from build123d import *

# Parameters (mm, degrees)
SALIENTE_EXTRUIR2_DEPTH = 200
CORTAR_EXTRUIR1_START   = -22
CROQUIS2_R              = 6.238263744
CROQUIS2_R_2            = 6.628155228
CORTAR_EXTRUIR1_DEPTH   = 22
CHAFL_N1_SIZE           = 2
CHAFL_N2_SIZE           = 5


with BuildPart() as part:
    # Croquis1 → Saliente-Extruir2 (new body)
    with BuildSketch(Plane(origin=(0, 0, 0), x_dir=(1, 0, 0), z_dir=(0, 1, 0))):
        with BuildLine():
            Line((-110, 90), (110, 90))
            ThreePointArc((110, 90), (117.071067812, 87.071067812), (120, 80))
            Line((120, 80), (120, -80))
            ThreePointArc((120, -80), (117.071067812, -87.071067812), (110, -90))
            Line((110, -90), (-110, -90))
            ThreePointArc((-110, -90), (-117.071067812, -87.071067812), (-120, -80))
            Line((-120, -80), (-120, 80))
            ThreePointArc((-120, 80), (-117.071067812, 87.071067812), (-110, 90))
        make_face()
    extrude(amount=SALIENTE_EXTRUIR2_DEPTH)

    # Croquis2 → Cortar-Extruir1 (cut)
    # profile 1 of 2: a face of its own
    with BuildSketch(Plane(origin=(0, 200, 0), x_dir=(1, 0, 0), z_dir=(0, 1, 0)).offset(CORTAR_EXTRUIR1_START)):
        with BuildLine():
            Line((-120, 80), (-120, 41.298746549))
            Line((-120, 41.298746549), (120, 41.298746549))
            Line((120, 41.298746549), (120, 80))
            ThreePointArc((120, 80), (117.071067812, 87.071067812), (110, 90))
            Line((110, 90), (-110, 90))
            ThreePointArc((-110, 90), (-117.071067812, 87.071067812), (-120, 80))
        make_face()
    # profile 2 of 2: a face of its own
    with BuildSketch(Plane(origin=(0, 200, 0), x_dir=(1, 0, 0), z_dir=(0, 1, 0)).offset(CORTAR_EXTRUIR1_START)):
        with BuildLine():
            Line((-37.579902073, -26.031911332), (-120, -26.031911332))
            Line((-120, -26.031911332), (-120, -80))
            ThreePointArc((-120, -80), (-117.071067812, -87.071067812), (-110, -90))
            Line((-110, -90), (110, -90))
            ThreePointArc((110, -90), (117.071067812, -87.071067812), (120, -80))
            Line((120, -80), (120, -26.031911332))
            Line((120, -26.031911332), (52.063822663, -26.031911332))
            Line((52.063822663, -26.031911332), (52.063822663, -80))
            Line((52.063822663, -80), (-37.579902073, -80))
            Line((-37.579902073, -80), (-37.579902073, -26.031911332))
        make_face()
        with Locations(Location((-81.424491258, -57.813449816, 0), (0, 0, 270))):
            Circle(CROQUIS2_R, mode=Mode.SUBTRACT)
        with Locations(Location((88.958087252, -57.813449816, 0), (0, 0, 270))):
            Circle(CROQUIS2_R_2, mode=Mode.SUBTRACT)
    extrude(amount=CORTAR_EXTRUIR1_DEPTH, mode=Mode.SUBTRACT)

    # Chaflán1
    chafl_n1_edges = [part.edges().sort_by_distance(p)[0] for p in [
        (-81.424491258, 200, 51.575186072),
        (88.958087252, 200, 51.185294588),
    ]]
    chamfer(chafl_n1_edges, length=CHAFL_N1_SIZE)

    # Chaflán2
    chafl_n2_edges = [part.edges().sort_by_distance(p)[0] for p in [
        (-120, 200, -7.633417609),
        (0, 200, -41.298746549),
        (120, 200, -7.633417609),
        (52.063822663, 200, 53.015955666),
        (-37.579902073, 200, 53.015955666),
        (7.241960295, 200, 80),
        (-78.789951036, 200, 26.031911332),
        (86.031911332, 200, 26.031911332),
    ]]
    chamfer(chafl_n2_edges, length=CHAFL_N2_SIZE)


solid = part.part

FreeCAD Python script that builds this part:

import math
import FreeCAD as App
import Part
import Sketcher
from FreeCAD import Vector


def edges_at(feature, points):
    """Names of the edges that pass closest to the given points."""
    edges = feature.Shape.Edges
    near = lambda p: min(range(len(edges)), key=lambda i: edges[i].distToShape(Part.Vertex(*p))[0])
    return sorted({f"Edge{near(p) + 1}" for p in points})

doc = App.newDocument("Part")
body = doc.addObject("PartDesign::Body", "Body")

# Sketch on XZ plane
sketch1 = doc.addObject("Sketcher::SketchObject", "Sketch")
body.addObject(sketch1)
sketch1.AttachmentSupport = (doc.XZ_Plane, [""])
sketch1.MapMode = "FlatFace"
sketch1.addGeometry(Part.LineSegment(Vector(110, -90, 0), Vector(-110, -90, 0)), False)
sketch1.addGeometry(Part.ArcOfCircle(Part.Circle(Vector(-110, -80, 0), Vector(0, 0, 1), 10), math.radians(180), math.radians(270)), False)
sketch1.addGeometry(Part.LineSegment(Vector(-120, -80, 0), Vector(-120, 80, 0)), False)
sketch1.addGeometry(Part.ArcOfCircle(Part.Circle(Vector(-110, 80, 0), Vector(0, 0, 1), 10), math.radians(90), math.radians(180)), False)
sketch1.addGeometry(Part.LineSegment(Vector(-110, 90, 0), Vector(110, 90, 0)), False)
sketch1.addGeometry(Part.ArcOfCircle(Part.Circle(Vector(110, 80, 0), Vector(0, 0, 1), 10), math.radians(0), math.radians(90)), False)
sketch1.addGeometry(Part.LineSegment(Vector(120, 80, 0), Vector(120, -80, 0)), False)
sketch1.addGeometry(Part.ArcOfCircle(Part.Circle(Vector(110, -80, 0), Vector(0, 0, 1), 10), math.radians(-90), math.radians(0)), False)
sketch1.addConstraint(Sketcher.Constraint("Tangent", 0, 2, 1, 2))
sketch1.addConstraint(Sketcher.Constraint("Tangent", 1, 1, 2, 1))
sketch1.addConstraint(Sketcher.Constraint("Tangent", 2, 2, 3, 2))
sketch1.addConstraint(Sketcher.Constraint("Tangent", 3, 1, 4, 1))
sketch1.addConstraint(Sketcher.Constraint("Tangent", 4, 2, 5, 2))
sketch1.addConstraint(Sketcher.Constraint("Tangent", 5, 1, 6, 1))
sketch1.addConstraint(Sketcher.Constraint("Tangent", 6, 2, 7, 2))
sketch1.addConstraint(Sketcher.Constraint("Tangent", 7, 1, 0, 1))
sketch1.addConstraint(Sketcher.Constraint("Horizontal", 0))
sketch1.addConstraint(Sketcher.Constraint("Vertical", 2))
sketch1.addConstraint(Sketcher.Constraint("Horizontal", 4))
sketch1.addConstraint(Sketcher.Constraint("Vertical", 6))
sketch1.addConstraint(Sketcher.Constraint("Equal", 1, 3))
sketch1.addConstraint(Sketcher.Constraint("Equal", 3, 5))
sketch1.addConstraint(Sketcher.Constraint("Equal", 5, 7))
sketch1.addConstraint(Sketcher.Constraint("Symmetric", 1, 3, 5, 3, -1, 1))
sketch1.addConstraint(Sketcher.Constraint("Radius", 1, 10.0))
sketch1.addConstraint(Sketcher.Constraint("DistanceX", 0, 2, 0, 1, 220.0))
sketch1.addConstraint(Sketcher.Constraint("DistanceY", 2, 1, 2, 2, 160.0))
pad1 = doc.addObject("PartDesign::Pad", "Pad")
body.addObject(pad1)
pad1.Profile = sketch1
pad1.Length = 200
pad1.Reversed = True

# Sketch on XZ plane
sketch2 = doc.addObject("Sketcher::SketchObject", "Sketch001")
body.addObject(sketch2)
sketch2.AttachmentSupport = (doc.XZ_Plane, [""])
sketch2.MapMode = "FlatFace"
sketch2.AttachmentOffset = App.Placement(Vector(0, 0, -178), App.Rotation())
sketch2.addGeometry(Part.LineSegment(Vector(-120, -80, 0), Vector(-120, -41, 0)), False)
sketch2.addGeometry(Part.LineSegment(Vector(-120, -41, 0), Vector(120, -41, 0)), False)
sketch2.addGeometry(Part.LineSegment(Vector(120, -41, 0), Vector(120, -80, 0)), False)
sketch2.addGeometry(Part.ArcOfCircle(Part.Circle(Vector(110, -80, 0), Vector(0, 0, 1), 10), math.radians(-90), math.radians(0)), False)
sketch2.addGeometry(Part.LineSegment(Vector(110, -90, 0), Vector(-110, -90, 0)), False)
sketch2.addGeometry(Part.ArcOfCircle(Part.Circle(Vector(-110, -80, 0), Vector(0, 0, 1), 10), math.radians(180), math.radians(270)), False)
sketch2.addGeometry(Part.LineSegment(Vector(-38, 26, 0), Vector(-120, 26, 0)), False)
sketch2.addGeometry(Part.LineSegment(Vector(-120, 26, 0), Vector(-120, 80, 0)), False)
sketch2.addGeometry(Part.ArcOfCircle(Part.Circle(Vector(-110, 80, 0), Vector(0, 0, 1), 10), math.radians(90), math.radians(180)), False)
sketch2.addGeometry(Part.LineSegment(Vector(-110, 90, 0), Vector(110, 90, 0)), False)
sketch2.addGeometry(Part.ArcOfCircle(Part.Circle(Vector(110, 80, 0), Vector(0, 0, 1), 10), math.radians(0), math.radians(90)), False)
sketch2.addGeometry(Part.LineSegment(Vector(120, 80, 0), Vector(120, 26, 0)), False)
sketch2.addGeometry(Part.LineSegment(Vector(120, 26, 0), Vector(52, 26, 0)), False)
sketch2.addGeometry(Part.LineSegment(Vector(52, 26, 0), Vector(52, 80, 0)), False)
sketch2.addGeometry(Part.LineSegment(Vector(52, 80, 0), Vector(-38, 80, 0)), False)
sketch2.addGeometry(Part.LineSegment(Vector(-38, 80, 0), Vector(-38, 26, 0)), False)
sketch2.addGeometry(Part.Circle(Vector(-81, 58, 0), Vector(0, 0, 1), 6), False)
sketch2.addGeometry(Part.Circle(Vector(89, 58, 0), Vector(0, 0, 1), 7), False)
sketch2.addConstraint(Sketcher.Constraint("Coincident", 0, 2, 1, 1))
sketch2.addConstraint(Sketcher.Constraint("Coincident", 1, 2, 2, 1))
sketch2.addConstraint(Sketcher.Constraint("Tangent", 2, 2, 3, 2))
sketch2.addConstraint(Sketcher.Constraint("Tangent", 3, 1, 4, 1))
sketch2.addConstraint(Sketcher.Constraint("Tangent", 4, 2, 5, 2))
sketch2.addConstraint(Sketcher.Constraint("Tangent", 5, 1, 0, 1))
sketch2.addConstraint(Sketcher.Constraint("Coincident", 6, 2, 7, 1))
sketch2.addConstraint(Sketcher.Constraint("Tangent", 7, 2, 8, 2))
sketch2.addConstraint(Sketcher.Constraint("Tangent", 8, 1, 9, 1))
sketch2.addConstraint(Sketcher.Constraint("Tangent", 9, 2, 10, 2))
sketch2.addConstraint(Sketcher.Constraint("Tangent", 10, 1, 11, 1))
sketch2.addConstraint(Sketcher.Constraint("Coincident", 11, 2, 12, 1))
sketch2.addConstraint(Sketcher.Constraint("Coincident", 12, 2, 13, 1))
sketch2.addConstraint(Sketcher.Constraint("Coincident", 13, 2, 14, 1))
sketch2.addConstraint(Sketcher.Constraint("Coincident", 14, 2, 15, 1))
sketch2.addConstraint(Sketcher.Constraint("Coincident", 15, 2, 6, 1))
sketch2.addConstraint(Sketcher.Constraint("Vertical", 0))
sketch2.addConstraint(Sketcher.Constraint("Horizontal", 1))
sketch2.addConstraint(Sketcher.Constraint("Vertical", 2))
sketch2.addConstraint(Sketcher.Constraint("Horizontal", 4))
sketch2.addConstraint(Sketcher.Constraint("Horizontal", 6))
sketch2.addConstraint(Sketcher.Constraint("Vertical", 7))
sketch2.addConstraint(Sketcher.Constraint("Horizontal", 9))
sketch2.addConstraint(Sketcher.Constraint("Vertical", 11))
sketch2.addConstraint(Sketcher.Constraint("Horizontal", 12))
sketch2.addConstraint(Sketcher.Constraint("Vertical", 13))
sketch2.addConstraint(Sketcher.Constraint("Horizontal", 14))
sketch2.addConstraint(Sketcher.Constraint("Vertical", 15))
sketch2.addConstraint(Sketcher.Constraint("Equal", 3, 5))
sketch2.addConstraint(Sketcher.Constraint("Equal", 5, 8))
sketch2.addConstraint(Sketcher.Constraint("Equal", 8, 10))
sketch2.addConstraint(Sketcher.Constraint("Symmetric", 3, 3, 8, 3, -1, 1))
sketch2.addConstraint(Sketcher.Constraint("Symmetric", 6, 2, 11, 2, -2))
sketch2.addConstraint(Sketcher.Constraint("Horizontal", 16, 3, 17, 3))
sketch2.addConstraint(Sketcher.Constraint("Horizontal", 10, 1, 13, 2))
sketch2.addConstraint(Sketcher.Constraint("Vertical", 5, 3, 8, 3))
sketch2.addConstraint(Sketcher.Constraint("Radius", 3, 10.0))
sketch2.addConstraint(Sketcher.Constraint("DistanceX", 1, 1, 1, 2, 240.0))
sketch2.addConstraint(Sketcher.Constraint("DistanceY", 3, 3, -1, 1, 80.0))
sketch2.addConstraint(Sketcher.Constraint("Diameter", 17, 13.25631))
sketch2.addConstraint(Sketcher.Constraint("Diameter", 16, 12.476527))
sketch2.addConstraint(Sketcher.Constraint("DistanceY", 7, 1, 7, 2, 53.968089))
sketch2.addConstraint(Sketcher.Constraint("DistanceX", 6, 2, 6, 1, 82.420098))
sketch2.addConstraint(Sketcher.Constraint("DistanceX", 12, 2, 12, 1, 67.936177))
sketch2.addConstraint(Sketcher.Constraint("DistanceY", 0, 1, 0, 2, 38.701253))
sketch2.addConstraint(Sketcher.Constraint("DistanceX", 16, 3, -1, 1, 81.424491))
sketch2.addConstraint(Sketcher.Constraint("DistanceY", -1, 1, 16, 3, 57.81345))
sketch2.addConstraint(Sketcher.Constraint("DistanceX", 16, 3, 17, 3, 170.382579))
pocket1 = doc.addObject("PartDesign::Pocket", "Pocket")
body.addObject(pocket1)
pocket1.Profile = sketch2
pocket1.Length = 22
doc.recompute()

chamfer = doc.addObject("PartDesign::Chamfer", "Chamfer")
body.addObject(chamfer)
chamfer.Base = (pocket1, edges_at(pocket1, [(-81.424, 200, 51.575), (88.958, 200, 51.185)]))
chamfer.Size = 2
doc.recompute()

chamfer2 = doc.addObject("PartDesign::Chamfer", "Chamfer001")
body.addObject(chamfer2)
chamfer2.Base = (chamfer, edges_at(chamfer, [
    (-120, 200, -7.633),
    (0, 200, -41.299),
    (120, 200, -7.633),
    (52.064, 200, 53.016),
    (-37.58, 200, 53.016),
    (7.242, 200, 80),
    (-78.79, 200, 26.032),
    (86.032, 200, 26.032),
]))
chamfer2.Size = 5

doc.recompute()
